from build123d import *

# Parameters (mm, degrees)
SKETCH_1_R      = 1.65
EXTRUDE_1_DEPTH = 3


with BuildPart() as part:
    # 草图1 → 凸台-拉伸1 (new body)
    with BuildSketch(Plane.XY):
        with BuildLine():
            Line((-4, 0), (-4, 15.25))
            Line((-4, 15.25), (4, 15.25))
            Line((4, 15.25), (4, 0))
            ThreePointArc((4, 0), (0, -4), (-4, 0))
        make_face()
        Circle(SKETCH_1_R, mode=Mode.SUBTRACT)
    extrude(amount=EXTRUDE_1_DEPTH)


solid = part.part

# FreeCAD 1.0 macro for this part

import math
import FreeCAD as App
import Part
import Sketcher

V = App.Vector
Q = App.Units.Quantity

doc = App.newDocument("Part")
params = doc.addObject("Spreadsheet::Sheet", "Params")
for row, (alias, value) in enumerate([
    ("sketch1_radius", "4 mm"),
    ("sketch1_diameter", "3.3 mm"),
    ("sketch1_height", "15.25 mm"),
    ("pad1_length", "3 mm"),
], start=1):
    params.set(f"A{row}", alias)
    params.set(f"B{row}", "=" + value)
    params.setAlias(f"B{row}", alias)

body = doc.addObject("PartDesign::Body", "Body")

# Sketch on XY plane
sketch1 = doc.addObject("Sketcher::SketchObject", "Sketch")
body.addObject(sketch1)
sketch1.AttachmentSupport = (doc.XY_Plane, [""])
sketch1.MapMode = "FlatFace"
sketch1.addGeometry([
    Part.LineSegment(V(-4, 15.2, 0), V(-4, 0, 0)),  # 0
    Part.ArcOfCircle(Part.Circle(V(0, 0, 0), V(0, 0, 1), 4), math.radians(180), math.radians(360)),  # 1
    Part.LineSegment(V(4, 0, 0), V(4, 15.2, 0)),  # 2
    Part.LineSegment(V(4, 15.2, 0), V(-4, 15.2, 0)),  # 3
    Part.Circle(V(0, 0, 0), V(0, 0, 1), 1.6),  # 4
], False)
sketch1.addConstraint([
    Sketcher.Constraint("Tangent", 0, 2, 1, 1),
    Sketcher.Constraint("Tangent", 1, 2, 2, 1),
    Sketcher.Constraint("Coincident", 2, 2, 3, 1),
    Sketcher.Constraint("Coincident", 3, 2, 0, 1),
    Sketcher.Constraint("Vertical", 0),
    Sketcher.Constraint("Vertical", 2),
    Sketcher.Constraint("Horizontal", 3),
    Sketcher.Constraint("Coincident", 1, 3, -1, 1),
    Sketcher.Constraint("Coincident", 4, 3, -1, 1),
    Sketcher.Constraint("Radius", 1, Q("4 mm")),
    Sketcher.Constraint("Diameter", 4, Q("3.3 mm")),
    Sketcher.Constraint("DistanceY", 0, 2, 0, 1, Q("15.25 mm")),
])
sketch1.setExpression("Constraints[9]", "Params.sketch1_radius")
sketch1.setExpression("Constraints[10]", "Params.sketch1_diameter")
sketch1.setExpression("Constraints[11]", "Params.sketch1_height")
pad1 = doc.addObject("PartDesign::Pad", "Pad")
body.addObject(pad1)
pad1.Profile = sketch1
pad1.setExpression("Length", "Params.pad1_length")

doc.recompute()
